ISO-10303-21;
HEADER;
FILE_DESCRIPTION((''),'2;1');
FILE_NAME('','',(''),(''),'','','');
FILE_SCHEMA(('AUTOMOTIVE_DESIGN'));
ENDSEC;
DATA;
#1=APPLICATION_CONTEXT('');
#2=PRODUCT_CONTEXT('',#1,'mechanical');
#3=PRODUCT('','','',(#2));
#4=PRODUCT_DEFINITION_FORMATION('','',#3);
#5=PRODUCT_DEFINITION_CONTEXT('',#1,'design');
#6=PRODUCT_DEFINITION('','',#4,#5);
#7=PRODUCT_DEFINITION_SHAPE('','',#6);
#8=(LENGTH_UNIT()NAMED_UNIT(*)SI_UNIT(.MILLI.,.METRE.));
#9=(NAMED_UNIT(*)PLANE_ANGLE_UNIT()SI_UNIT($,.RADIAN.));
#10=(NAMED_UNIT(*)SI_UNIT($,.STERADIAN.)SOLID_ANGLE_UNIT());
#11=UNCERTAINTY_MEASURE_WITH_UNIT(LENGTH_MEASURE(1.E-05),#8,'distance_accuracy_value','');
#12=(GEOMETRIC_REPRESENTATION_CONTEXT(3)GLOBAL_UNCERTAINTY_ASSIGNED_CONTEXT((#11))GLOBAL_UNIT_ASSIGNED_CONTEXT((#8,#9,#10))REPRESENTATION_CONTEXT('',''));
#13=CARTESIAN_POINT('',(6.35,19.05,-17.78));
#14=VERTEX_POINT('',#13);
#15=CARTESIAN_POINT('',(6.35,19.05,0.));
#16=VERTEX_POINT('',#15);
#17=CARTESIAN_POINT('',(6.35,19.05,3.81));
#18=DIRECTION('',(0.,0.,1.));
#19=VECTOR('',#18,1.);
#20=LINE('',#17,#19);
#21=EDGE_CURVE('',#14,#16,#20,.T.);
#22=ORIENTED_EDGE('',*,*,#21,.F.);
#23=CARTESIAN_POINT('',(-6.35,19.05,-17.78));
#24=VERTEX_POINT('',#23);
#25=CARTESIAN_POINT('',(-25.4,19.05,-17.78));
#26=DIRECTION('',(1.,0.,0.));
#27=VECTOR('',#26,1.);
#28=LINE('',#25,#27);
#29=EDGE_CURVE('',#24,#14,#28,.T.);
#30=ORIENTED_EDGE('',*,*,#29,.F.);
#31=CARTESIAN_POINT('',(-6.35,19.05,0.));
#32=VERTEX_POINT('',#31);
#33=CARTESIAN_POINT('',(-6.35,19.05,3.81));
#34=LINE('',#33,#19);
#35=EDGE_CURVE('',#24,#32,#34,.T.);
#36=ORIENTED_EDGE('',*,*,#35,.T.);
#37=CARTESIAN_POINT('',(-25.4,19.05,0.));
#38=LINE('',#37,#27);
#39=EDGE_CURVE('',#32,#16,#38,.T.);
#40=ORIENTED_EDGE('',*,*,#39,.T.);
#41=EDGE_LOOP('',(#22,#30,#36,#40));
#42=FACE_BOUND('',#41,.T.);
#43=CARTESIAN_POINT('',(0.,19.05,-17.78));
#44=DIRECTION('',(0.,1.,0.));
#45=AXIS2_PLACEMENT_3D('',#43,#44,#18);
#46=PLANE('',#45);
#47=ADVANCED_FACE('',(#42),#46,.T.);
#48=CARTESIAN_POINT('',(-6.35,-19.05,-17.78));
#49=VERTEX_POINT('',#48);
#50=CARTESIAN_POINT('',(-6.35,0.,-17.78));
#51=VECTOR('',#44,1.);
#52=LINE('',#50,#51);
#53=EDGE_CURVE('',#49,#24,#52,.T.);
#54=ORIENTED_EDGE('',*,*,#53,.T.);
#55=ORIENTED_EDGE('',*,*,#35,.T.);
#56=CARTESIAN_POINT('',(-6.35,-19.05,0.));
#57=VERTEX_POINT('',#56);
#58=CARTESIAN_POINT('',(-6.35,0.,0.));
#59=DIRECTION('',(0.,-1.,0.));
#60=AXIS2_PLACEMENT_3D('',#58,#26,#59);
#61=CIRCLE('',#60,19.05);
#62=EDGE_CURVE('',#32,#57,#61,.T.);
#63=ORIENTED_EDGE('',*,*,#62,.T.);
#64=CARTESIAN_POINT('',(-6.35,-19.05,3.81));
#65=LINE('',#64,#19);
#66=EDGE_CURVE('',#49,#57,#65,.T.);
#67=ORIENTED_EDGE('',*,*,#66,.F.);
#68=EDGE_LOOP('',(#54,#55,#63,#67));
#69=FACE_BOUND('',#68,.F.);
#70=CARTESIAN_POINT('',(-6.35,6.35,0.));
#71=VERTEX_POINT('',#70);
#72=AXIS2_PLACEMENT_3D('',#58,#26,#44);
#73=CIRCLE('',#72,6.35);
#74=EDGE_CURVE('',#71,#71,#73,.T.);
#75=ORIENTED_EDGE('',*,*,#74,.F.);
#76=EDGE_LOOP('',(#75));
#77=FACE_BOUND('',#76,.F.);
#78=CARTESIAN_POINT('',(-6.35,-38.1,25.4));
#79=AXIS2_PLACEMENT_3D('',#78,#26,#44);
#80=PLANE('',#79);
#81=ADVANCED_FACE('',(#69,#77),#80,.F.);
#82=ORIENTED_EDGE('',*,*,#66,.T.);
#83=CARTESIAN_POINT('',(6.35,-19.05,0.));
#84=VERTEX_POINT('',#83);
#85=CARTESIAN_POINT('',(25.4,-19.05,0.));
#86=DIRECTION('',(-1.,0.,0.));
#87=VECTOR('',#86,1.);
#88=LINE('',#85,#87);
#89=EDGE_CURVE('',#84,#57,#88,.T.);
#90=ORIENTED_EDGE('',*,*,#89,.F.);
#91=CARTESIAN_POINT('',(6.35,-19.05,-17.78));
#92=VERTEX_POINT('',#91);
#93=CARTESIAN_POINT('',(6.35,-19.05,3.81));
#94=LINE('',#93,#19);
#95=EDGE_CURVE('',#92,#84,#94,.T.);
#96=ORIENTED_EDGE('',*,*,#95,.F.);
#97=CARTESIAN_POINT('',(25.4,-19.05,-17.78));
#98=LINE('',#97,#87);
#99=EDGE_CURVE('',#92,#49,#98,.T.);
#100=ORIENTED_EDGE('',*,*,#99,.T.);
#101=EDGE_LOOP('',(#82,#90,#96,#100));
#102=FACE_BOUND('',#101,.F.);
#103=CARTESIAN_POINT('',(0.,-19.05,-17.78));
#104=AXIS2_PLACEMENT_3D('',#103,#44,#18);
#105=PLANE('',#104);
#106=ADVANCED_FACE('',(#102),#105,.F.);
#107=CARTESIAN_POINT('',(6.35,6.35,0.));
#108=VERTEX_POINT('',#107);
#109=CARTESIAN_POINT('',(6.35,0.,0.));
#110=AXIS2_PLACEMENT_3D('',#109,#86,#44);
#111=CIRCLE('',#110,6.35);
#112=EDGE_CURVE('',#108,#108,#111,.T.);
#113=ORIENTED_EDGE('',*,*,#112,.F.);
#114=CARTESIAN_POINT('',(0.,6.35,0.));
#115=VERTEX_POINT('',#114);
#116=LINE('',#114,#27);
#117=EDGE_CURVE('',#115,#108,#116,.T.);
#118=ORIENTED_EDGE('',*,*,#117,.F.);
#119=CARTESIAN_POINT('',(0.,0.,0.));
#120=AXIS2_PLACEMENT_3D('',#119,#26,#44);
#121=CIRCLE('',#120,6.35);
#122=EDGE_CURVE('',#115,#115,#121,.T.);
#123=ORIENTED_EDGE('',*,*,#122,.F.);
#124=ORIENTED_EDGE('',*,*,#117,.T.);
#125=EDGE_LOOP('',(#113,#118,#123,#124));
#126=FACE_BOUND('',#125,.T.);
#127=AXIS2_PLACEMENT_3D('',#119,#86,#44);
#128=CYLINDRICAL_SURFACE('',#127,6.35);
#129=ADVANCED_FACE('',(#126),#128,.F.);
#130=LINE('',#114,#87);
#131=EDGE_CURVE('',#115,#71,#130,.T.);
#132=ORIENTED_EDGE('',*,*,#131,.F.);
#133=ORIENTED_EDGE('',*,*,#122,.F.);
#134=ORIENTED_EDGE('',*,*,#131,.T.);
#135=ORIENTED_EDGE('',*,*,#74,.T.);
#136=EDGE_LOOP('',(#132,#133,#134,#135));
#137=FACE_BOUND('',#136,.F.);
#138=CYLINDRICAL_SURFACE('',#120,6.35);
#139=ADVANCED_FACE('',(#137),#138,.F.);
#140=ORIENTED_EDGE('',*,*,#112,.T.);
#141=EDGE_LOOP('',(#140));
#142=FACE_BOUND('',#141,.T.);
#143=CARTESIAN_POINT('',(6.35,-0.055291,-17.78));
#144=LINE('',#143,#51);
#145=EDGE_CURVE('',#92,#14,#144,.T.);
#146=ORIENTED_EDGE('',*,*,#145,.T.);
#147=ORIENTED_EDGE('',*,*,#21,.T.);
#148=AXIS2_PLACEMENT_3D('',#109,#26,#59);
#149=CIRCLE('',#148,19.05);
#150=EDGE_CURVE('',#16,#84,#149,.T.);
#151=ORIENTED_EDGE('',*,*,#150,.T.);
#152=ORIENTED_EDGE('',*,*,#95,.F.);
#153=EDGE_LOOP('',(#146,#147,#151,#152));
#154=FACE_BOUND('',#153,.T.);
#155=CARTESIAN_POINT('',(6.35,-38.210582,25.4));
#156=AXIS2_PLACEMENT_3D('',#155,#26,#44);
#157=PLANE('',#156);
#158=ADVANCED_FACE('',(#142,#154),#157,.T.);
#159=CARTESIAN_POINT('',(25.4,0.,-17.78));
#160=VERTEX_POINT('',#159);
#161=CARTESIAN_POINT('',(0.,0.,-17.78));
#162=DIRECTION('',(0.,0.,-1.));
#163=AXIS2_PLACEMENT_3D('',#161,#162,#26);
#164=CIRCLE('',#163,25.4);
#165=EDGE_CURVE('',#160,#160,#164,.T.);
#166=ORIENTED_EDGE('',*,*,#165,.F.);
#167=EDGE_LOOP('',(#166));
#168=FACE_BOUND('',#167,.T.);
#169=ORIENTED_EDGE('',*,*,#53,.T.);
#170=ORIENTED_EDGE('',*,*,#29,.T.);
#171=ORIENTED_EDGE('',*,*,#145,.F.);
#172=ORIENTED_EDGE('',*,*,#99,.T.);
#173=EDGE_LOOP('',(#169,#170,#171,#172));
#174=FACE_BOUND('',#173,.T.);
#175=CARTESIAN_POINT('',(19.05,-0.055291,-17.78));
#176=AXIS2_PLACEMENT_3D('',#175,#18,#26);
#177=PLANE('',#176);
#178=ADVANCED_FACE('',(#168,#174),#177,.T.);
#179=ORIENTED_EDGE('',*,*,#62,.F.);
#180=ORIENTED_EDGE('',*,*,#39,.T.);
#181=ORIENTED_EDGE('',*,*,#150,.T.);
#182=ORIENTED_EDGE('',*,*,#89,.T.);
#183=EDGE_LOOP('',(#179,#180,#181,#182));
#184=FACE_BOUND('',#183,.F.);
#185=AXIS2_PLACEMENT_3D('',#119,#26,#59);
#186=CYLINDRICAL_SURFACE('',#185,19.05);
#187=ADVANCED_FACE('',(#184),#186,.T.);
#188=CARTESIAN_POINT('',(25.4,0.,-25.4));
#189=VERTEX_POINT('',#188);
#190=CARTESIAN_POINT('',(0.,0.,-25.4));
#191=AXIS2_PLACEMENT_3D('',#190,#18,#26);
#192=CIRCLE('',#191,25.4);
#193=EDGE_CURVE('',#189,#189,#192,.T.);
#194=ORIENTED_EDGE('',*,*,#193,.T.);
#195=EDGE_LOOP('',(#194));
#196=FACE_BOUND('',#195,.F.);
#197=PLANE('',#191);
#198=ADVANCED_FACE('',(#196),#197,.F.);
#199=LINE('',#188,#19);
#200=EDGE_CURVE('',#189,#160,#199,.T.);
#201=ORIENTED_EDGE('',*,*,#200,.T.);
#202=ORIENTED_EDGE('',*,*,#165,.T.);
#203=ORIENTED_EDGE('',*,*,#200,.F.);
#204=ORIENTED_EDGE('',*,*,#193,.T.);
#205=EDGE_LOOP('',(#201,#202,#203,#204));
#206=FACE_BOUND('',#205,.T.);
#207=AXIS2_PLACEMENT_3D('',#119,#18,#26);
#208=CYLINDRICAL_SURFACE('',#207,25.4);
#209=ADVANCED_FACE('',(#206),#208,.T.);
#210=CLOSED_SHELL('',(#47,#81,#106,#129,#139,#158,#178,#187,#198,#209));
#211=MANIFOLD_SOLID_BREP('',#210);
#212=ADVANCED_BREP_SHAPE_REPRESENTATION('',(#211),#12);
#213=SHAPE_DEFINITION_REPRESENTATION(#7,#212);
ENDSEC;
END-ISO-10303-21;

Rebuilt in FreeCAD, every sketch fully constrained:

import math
import FreeCAD as App
import Part
import Sketcher

V = App.Vector
Q = App.Units.Quantity


def add_polygon(sketch, points):
    """Adds a closed chain of lines whose ends are joined by coincident constraints."""
    first, n = sketch.GeometryCount, len(points)
    for a, b in zip(points, points[1:] + points[:1]):
        sketch.addGeometry(Part.LineSegment(App.Vector(*a, 0), App.Vector(*b, 0)), False)
    for i in range(n):
        sketch.addConstraint(Sketcher.Constraint("Coincident", first + i, 2, first + (i + 1) % n, 1))

doc = App.newDocument("Part")
body = doc.addObject("PartDesign::Body", "Body")

# Sketch on XY plane
sketch1 = body.newObject("Sketcher::SketchObject", "Sketch")
sketch1.AttachmentSupport = (doc.getObject("XY_Plane"), [""])
sketch1.MapMode = "FlatFace"
sketch1.addGeometry(Part.Circle(V(0, 0, 0), V(0, 0, 1), 25), False)
sketch1.addConstraint([
    Sketcher.Constraint("Coincident", 0, 3, -1, 1),
    Sketcher.Constraint("Diameter", 0, Q("2 in")),
])
pad1 = body.newObject("PartDesign::Pad", "Pad")
pad1.Profile = sketch1
pad1.Length = Q("2 in")
pad1.Midplane = True

# Sketch on XY plane
sketch2 = body.newObject("Sketcher::SketchObject", "Sketch001")
sketch2.AttachmentSupport = (doc.getObject("XY_Plane"), [""])
sketch2.MapMode = "FlatFace"
sketch2.AttachmentOffset = App.Placement(V(0, 0, 1 * 25.4), App.Rotation())
add_polygon(sketch2, [(-32, 38), (-32, -38), (-6, -38), (-6, 38)])  # lines 0-3
add_polygon(sketch2, [(6, 38), (6, -38), (32, -38), (32, 38)])  # lines 4-7
sketch2.addConstraint([
    Sketcher.Constraint("Vertical", 0),
    Sketcher.Constraint("Horizontal", 1),
    Sketcher.Constraint("Vertical", 2),
    Sketcher.Constraint("Horizontal", 3),
    Sketcher.Constraint("Vertical", 4),
    Sketcher.Constraint("Horizontal", 5),
    Sketcher.Constraint("Vertical", 6),
    Sketcher.Constraint("Horizontal", 7),
    Sketcher.Constraint("Symmetric", 0, 2, 6, 2, -1, 1),
    Sketcher.Constraint("Symmetric", 2, 2, 7, 2, -2),
    Sketcher.Constraint("DistanceX", 1, 1, 1, 2, Q("1 in")),
    Sketcher.Constraint("DistanceY", 0, 2, 0, 1, Q("3 in")),
    Sketcher.Constraint("DistanceX", 1, 2, 4, 2, Q("0.5 in")),
    Sketcher.Constraint("DistanceY", 4, 2, 4, 1, 76.310582),
])
pocket1 = body.newObject("PartDesign::Pocket", "Pocket")
pocket1.Profile = sketch2
pocket1.Length = Q("1.7 in")

# Sketch on YZ plane
sketch3 = body.newObject("Sketcher::SketchObject", "Sketch002")
sketch3.AttachmentSupport = (doc.getObject("YZ_Plane"), [""])
sketch3.MapMode = "FlatFace"
sketch3.addGeometry([
    Part.Circle(V(0, 0, 0), V(0, 0, 1), 6),  # 0
    Part.ArcOfCircle(Part.Circle(V(0, 0, 0), V(0, 0, 1), 19), math.radians(0), math.radians(180)),  # 1
    Part.LineSegment(V(19, 0, 0), V(19, -18, 0)),  # 2
    Part.LineSegment(V(19, -18, 0), V(38, -18, 0)),  # 3
    Part.LineSegment(V(38, -18, 0), V(38, 38, 0)),  # 4
    Part.LineSegment(V(38, 38, 0), V(-38, 38, 0)),  # 5
    Part.LineSegment(V(-38, 38, 0), V(-38, -18, 0)),  # 6
    Part.LineSegment(V(-38, -18, 0), V(-19, -18, 0)),  # 7
    Part.LineSegment(V(-19, -18, 0), V(-19, 0, 0)),  # 8
], False)
sketch3.addConstraint([
    Sketcher.Constraint("Tangent", 1, 1, 2, 1),
    Sketcher.Constraint("Coincident", 2, 2, 3, 1),
    Sketcher.Constraint("Coincident", 3, 2, 4, 1),
    Sketcher.Constraint("Coincident", 4, 2, 5, 1),
    Sketcher.Constraint("Coincident", 5, 2, 6, 1),
    Sketcher.Constraint("Coincident", 6, 2, 7, 1),
    Sketcher.Constraint("Coincident", 7, 2, 8, 1),
    Sketcher.Constraint("Tangent", 8, 2, 1, 2),
    Sketcher.Constraint("Vertical", 2),
    Sketcher.Constraint("Horizontal", 3),
    Sketcher.Constraint("Vertical", 4),
    Sketcher.Constraint("Horizontal", 5),
    Sketcher.Constraint("Vertical", 6),
    Sketcher.Constraint("Horizontal", 7),
    Sketcher.Constraint("Vertical", 8),
    Sketcher.Constraint("Coincident", 0, 3, -1, 1),
    Sketcher.Constraint("Coincident", 1, 3, -1, 1),
    Sketcher.Constraint("Symmetric", 3, 2, 6, 2, -2),
    Sketcher.Constraint("Diameter", 0, Q("0.5 in")),
    Sketcher.Constraint("DistanceX", 5, 2, 5, 1, Q("3 in")),
    Sketcher.Constraint("Radius", 1, Q("0.75 in")),
    Sketcher.Constraint("DistanceY", 2, 2, 2, 1, Q("0.7 in")),
    Sketcher.Constraint("DistanceY", 4, 1, 4, 2, Q("2.2 in")),
])
pocket2 = body.newObject("PartDesign::Pocket", "Pocket001")
pocket2.Profile = sketch3
pocket2.Length = Q("2 in")
pocket2.Midplane = True

doc.recompute()
